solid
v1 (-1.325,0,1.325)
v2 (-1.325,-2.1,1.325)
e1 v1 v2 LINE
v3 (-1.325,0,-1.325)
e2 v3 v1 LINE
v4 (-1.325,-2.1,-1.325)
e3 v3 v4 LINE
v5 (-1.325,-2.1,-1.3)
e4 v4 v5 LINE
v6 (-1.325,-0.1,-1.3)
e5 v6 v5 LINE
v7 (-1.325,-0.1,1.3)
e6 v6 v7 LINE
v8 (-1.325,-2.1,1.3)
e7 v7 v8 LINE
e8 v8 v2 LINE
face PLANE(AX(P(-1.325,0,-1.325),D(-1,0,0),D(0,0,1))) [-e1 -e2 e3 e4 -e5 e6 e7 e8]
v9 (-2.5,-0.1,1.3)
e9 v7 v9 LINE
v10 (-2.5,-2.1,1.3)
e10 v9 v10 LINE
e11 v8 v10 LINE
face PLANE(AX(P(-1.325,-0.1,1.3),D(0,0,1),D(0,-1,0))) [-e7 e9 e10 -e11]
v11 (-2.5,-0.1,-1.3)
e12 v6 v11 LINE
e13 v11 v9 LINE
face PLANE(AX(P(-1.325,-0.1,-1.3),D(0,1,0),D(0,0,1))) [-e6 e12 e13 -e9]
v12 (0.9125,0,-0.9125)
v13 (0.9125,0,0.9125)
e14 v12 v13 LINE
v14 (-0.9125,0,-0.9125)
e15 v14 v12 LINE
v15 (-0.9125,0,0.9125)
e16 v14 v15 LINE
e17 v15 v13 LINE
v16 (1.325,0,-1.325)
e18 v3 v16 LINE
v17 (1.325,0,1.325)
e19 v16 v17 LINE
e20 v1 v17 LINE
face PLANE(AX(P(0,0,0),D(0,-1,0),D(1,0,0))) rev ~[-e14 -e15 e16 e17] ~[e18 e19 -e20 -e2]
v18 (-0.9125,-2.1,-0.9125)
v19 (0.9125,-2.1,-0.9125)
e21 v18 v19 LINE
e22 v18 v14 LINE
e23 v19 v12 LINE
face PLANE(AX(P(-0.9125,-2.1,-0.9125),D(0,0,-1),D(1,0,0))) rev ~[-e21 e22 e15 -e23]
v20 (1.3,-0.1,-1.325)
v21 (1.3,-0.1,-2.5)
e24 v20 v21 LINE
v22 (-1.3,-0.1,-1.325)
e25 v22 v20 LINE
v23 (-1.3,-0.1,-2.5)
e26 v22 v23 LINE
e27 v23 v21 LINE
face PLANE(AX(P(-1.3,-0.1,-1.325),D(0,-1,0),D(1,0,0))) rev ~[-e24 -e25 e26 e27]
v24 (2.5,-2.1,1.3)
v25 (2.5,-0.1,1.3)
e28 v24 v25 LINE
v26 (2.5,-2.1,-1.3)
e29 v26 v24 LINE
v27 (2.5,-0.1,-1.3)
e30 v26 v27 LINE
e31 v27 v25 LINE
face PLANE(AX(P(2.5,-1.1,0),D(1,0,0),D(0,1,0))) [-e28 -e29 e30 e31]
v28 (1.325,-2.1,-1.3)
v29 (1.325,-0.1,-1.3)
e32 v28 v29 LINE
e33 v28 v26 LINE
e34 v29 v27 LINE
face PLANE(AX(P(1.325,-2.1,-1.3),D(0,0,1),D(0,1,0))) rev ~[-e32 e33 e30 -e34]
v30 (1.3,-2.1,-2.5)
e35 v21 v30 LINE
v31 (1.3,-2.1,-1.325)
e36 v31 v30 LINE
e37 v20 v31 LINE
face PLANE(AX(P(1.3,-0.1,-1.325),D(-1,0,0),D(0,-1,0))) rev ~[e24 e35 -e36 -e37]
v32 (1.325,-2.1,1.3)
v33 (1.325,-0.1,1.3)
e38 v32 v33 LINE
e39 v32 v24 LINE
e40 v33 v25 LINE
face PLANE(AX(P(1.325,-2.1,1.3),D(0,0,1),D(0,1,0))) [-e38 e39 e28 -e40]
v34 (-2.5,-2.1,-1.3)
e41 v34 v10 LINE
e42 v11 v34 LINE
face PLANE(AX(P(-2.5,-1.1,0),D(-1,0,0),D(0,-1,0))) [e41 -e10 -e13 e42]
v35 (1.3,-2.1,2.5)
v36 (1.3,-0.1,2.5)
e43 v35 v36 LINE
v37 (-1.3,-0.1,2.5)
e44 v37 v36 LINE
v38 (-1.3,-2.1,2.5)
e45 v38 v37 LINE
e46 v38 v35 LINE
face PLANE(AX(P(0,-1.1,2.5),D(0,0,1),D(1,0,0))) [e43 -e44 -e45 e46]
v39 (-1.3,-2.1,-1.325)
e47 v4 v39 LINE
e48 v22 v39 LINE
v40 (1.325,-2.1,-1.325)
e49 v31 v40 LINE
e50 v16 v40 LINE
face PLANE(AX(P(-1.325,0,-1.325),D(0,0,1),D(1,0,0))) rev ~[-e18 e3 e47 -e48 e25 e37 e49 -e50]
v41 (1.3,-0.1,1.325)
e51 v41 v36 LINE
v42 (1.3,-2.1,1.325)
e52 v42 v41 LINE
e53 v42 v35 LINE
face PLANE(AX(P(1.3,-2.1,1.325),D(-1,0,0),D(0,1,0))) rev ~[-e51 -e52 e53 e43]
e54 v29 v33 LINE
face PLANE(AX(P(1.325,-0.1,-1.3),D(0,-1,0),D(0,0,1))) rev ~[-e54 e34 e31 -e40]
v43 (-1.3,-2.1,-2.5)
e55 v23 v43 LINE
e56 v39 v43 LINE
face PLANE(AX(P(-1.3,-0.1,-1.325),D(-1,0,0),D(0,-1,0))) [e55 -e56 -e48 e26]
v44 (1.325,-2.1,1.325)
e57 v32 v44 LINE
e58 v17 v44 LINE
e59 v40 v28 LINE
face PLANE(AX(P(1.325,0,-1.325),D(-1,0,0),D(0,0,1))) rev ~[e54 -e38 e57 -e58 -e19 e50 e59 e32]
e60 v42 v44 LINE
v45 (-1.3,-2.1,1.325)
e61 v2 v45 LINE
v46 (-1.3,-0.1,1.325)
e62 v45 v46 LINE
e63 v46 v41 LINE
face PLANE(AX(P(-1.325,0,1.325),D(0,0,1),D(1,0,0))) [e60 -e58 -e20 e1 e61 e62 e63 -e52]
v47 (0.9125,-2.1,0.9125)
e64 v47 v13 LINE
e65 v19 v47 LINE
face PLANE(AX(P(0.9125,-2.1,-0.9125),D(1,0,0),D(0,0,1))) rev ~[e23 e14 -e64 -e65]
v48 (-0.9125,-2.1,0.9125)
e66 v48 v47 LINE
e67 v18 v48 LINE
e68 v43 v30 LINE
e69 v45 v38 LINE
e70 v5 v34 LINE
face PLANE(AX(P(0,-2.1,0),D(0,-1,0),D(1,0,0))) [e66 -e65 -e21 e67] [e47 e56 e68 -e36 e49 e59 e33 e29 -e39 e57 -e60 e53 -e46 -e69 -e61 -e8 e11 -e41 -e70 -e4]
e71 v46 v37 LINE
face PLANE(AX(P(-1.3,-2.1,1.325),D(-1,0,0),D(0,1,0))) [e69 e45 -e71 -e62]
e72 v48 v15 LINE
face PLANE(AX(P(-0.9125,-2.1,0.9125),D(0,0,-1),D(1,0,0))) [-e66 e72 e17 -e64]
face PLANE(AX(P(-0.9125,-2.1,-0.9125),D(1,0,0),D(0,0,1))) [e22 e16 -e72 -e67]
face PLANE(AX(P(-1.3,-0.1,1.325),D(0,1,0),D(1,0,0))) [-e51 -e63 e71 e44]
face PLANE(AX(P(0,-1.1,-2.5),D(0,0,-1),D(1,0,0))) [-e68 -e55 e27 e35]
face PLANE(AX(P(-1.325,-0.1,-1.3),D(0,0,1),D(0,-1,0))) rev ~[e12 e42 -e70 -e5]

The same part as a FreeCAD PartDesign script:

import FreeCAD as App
import Part
import Sketcher


def add_polygon(sketch, points):
    """Adds a closed chain of lines whose ends are joined by coincident constraints."""
    first, n = sketch.GeometryCount, len(points)
    for a, b in zip(points, points[1:] + points[:1]):
        sketch.addGeometry(Part.LineSegment(App.Vector(*a, 0), App.Vector(*b, 0)), False)
    for i in range(n):
        sketch.addConstraint(Sketcher.Constraint("Coincident", first + i, 2, first + (i + 1) % n, 1))

doc = App.newDocument("Part")
body = doc.addObject("PartDesign::Body", "Body")

# Sketch on XZ plane
sketch1 = body.newObject("Sketcher::SketchObject", "Sketch")
sketch1.AttachmentSupport = (doc.getObject("XZ_Plane"), [""])
sketch1.MapMode = "FlatFace"
add_polygon(sketch1, [(-1.3, 1.3), (-1.3, -1.3), (1.3, -1.3), (1.3, 1.3)])  # lines 0-3
sketch1.addConstraint([
    Sketcher.Constraint("Vertical", 0),
    Sketcher.Constraint("Horizontal", 1),
    Sketcher.Constraint("Vertical", 2),
    Sketcher.Constraint("Horizontal", 3),
    Sketcher.Constraint("Symmetric", 0, 2, 2, 2, -1, 1),
    Sketcher.Constraint("Equal", 3, 0),
    Sketcher.Constraint("DistanceX", 1, 1, 1, 2, 2.65),
])
pad1 = body.newObject("PartDesign::Pad", "Pad")
pad1.Profile = sketch1
pad1.Length = 2.1

# Sketch on XY plane
sketch2 = body.newObject("Sketcher::SketchObject", "Sketch001")
sketch2.AttachmentSupport = (doc.getObject("XY_Plane"), [""])
sketch2.MapMode = "FlatFace"
sketch2.AttachmentOffset = App.Placement(App.Vector(0, 0, -1.325), App.Rotation())
add_polygon(sketch2, [(-1.3, -2.1), (-1.3, -0.1), (1.3, -0.1), (1.3, -2.1)])  # lines 0-3
sketch2.addConstraint([
    Sketcher.Constraint("Vertical", 0),
    Sketcher.Constraint("Horizontal", 1),
    Sketcher.Constraint("Vertical", 2),
    Sketcher.Constraint("Horizontal", 3),
    Sketcher.Constraint("DistanceY", 0, 1, 0, 2, 2.0),
    Sketcher.Constraint("DistanceX", 1, 1, 1, 2, 2.6),
    Sketcher.Constraint("DistanceX", 0, 2, -1, 1, 1.3),
    Sketcher.Constraint("DistanceY", 0, 2, -1, 1, 0.1),
])
pad2 = body.newObject("PartDesign::Pad", "Pad001")
pad2.Profile = sketch2
pad2.Length = 1.175
pad2.Reversed = True

# Sketch on YZ plane
sketch3 = body.newObject("Sketcher::SketchObject", "Sketch002")
sketch3.AttachmentSupport = (doc.getObject("YZ_Plane"), [""])
sketch3.MapMode = "FlatFace"
sketch3.AttachmentOffset = App.Placement(App.Vector(0, 0, -1.325), App.Rotation())
add_polygon(sketch3, [(-0.1, 1.3), (-0.1, -1.3), (-2.1, -1.3), (-2.1, 1.3)])  # lines 0-3
sketch3.addConstraint([
    Sketcher.Constraint("Vertical", 0),
    Sketcher.Constraint("Horizontal", 1),
    Sketcher.Constraint("Vertical", 2),
    Sketcher.Constraint("Horizontal", 3),
    Sketcher.Constraint("DistanceX", 1, 2, 1, 1, 2.0),
    Sketcher.Constraint("DistanceY", 0, 2, 0, 1, 2.6),
    Sketcher.Constraint("DistanceX", 0, 2, -1, 1, 0.1),
    Sketcher.Constraint("DistanceY", 0, 2, -1, 1, 1.3),
])
pad3 = body.newObject("PartDesign::Pad", "Pad002")
pad3.Profile = sketch3
pad3.Length = 1.175
pad3.Reversed = True

# Sketch on XY plane
sketch4 = body.newObject("Sketcher::SketchObject", "Sketch003")
sketch4.AttachmentSupport = (doc.getObject("XY_Plane"), [""])
sketch4.MapMode = "FlatFace"
sketch4.AttachmentOffset = App.Placement(App.Vector(0, 0, 1.325), App.Rotation())
add_polygon(sketch4, [(-1.3, -0.1), (-1.3, -2.1), (1.3, -2.1), (1.3, -0.1)])  # lines 0-3
sketch4.addConstraint([
    Sketcher.Constraint("Vertical", 0),
    Sketcher.Constraint("Horizontal", 1),
    Sketcher.Constraint("Vertical", 2),
    Sketcher.Constraint("Horizontal", 3),
    Sketcher.Constraint("DistanceY", 0, 2, 0, 1, 2.0),
    Sketcher.Constraint("DistanceX", 1, 1, 1, 2, 2.6),
    Sketcher.Constraint("DistanceX", 0, 2, -1, 1, 1.3),
    Sketcher.Constraint("DistanceY", 0, 2, -1, 1, 2.1),
])
pad4 = body.newObject("PartDesign::Pad", "Pad003")
pad4.Profile = sketch4
pad4.Length = 1.175

# Sketch on YZ plane
sketch5 = body.newObject("Sketcher::SketchObject", "Sketch004")
sketch5.AttachmentSupport = (doc.getObject("YZ_Plane"), [""])
sketch5.MapMode = "FlatFace"
sketch5.AttachmentOffset = App.Placement(App.Vector(0, 0, 1.325), App.Rotation())
add_polygon(sketch5, [(-2.1, 1.3), (-2.1, -1.3), (-0.1, -1.3), (-0.1, 1.3)])  # lines 0-3
sketch5.addConstraint([
    Sketcher.Constraint("Vertical", 0),
    Sketcher.Constraint("Horizontal", 1),
    Sketcher.Constraint("Vertical", 2),
    Sketcher.Constraint("Horizontal", 3),
    Sketcher.Constraint("DistanceX", 1, 1, 1, 2, 2.0),
    Sketcher.Constraint("DistanceY", 0, 2, 0, 1, 2.6),
    Sketcher.Constraint("DistanceX", 0, 2, -1, 1, 2.1),
    Sketcher.Constraint("DistanceY", 0, 2, -1, 1, 1.3),
])
pad5 = body.newObject("PartDesign::Pad", "Pad004")
pad5.Profile = sketch5
pad5.Length = 1.175

# Sketch on XZ plane
sketch6 = body.newObject("Sketcher::SketchObject", "Sketch005")
sketch6.AttachmentSupport = (doc.getObject("XZ_Plane"), [""])
sketch6.MapMode = "FlatFace"
sketch6.AttachmentOffset = App.Placement(App.Vector(0, 0, 2.1), App.Rotation())
add_polygon(sketch6, [(-0.9, 0.9), (-0.9, -0.9), (0.9, -0.9), (0.9, 0.9)])  # lines 0-3
sketch6.addConstraint([
    Sketcher.Constraint("Vertical", 0),
    Sketcher.Constraint("Horizontal", 1),
    Sketcher.Constraint("Vertical", 2),
    Sketcher.Constraint("Horizontal", 3),
    Sketcher.Constraint("Symmetric", 0, 2, 2, 2, -1, 1),
    Sketcher.Constraint("Equal", 3, 0),
    Sketcher.Constraint("DistanceX", 1, 1, 1, 2, 1.825),
])
pocket1 = body.newObject("PartDesign::Pocket", "Pocket")
pocket1.Profile = sketch6
pocket1.Length = 2.1

doc.recompute()
